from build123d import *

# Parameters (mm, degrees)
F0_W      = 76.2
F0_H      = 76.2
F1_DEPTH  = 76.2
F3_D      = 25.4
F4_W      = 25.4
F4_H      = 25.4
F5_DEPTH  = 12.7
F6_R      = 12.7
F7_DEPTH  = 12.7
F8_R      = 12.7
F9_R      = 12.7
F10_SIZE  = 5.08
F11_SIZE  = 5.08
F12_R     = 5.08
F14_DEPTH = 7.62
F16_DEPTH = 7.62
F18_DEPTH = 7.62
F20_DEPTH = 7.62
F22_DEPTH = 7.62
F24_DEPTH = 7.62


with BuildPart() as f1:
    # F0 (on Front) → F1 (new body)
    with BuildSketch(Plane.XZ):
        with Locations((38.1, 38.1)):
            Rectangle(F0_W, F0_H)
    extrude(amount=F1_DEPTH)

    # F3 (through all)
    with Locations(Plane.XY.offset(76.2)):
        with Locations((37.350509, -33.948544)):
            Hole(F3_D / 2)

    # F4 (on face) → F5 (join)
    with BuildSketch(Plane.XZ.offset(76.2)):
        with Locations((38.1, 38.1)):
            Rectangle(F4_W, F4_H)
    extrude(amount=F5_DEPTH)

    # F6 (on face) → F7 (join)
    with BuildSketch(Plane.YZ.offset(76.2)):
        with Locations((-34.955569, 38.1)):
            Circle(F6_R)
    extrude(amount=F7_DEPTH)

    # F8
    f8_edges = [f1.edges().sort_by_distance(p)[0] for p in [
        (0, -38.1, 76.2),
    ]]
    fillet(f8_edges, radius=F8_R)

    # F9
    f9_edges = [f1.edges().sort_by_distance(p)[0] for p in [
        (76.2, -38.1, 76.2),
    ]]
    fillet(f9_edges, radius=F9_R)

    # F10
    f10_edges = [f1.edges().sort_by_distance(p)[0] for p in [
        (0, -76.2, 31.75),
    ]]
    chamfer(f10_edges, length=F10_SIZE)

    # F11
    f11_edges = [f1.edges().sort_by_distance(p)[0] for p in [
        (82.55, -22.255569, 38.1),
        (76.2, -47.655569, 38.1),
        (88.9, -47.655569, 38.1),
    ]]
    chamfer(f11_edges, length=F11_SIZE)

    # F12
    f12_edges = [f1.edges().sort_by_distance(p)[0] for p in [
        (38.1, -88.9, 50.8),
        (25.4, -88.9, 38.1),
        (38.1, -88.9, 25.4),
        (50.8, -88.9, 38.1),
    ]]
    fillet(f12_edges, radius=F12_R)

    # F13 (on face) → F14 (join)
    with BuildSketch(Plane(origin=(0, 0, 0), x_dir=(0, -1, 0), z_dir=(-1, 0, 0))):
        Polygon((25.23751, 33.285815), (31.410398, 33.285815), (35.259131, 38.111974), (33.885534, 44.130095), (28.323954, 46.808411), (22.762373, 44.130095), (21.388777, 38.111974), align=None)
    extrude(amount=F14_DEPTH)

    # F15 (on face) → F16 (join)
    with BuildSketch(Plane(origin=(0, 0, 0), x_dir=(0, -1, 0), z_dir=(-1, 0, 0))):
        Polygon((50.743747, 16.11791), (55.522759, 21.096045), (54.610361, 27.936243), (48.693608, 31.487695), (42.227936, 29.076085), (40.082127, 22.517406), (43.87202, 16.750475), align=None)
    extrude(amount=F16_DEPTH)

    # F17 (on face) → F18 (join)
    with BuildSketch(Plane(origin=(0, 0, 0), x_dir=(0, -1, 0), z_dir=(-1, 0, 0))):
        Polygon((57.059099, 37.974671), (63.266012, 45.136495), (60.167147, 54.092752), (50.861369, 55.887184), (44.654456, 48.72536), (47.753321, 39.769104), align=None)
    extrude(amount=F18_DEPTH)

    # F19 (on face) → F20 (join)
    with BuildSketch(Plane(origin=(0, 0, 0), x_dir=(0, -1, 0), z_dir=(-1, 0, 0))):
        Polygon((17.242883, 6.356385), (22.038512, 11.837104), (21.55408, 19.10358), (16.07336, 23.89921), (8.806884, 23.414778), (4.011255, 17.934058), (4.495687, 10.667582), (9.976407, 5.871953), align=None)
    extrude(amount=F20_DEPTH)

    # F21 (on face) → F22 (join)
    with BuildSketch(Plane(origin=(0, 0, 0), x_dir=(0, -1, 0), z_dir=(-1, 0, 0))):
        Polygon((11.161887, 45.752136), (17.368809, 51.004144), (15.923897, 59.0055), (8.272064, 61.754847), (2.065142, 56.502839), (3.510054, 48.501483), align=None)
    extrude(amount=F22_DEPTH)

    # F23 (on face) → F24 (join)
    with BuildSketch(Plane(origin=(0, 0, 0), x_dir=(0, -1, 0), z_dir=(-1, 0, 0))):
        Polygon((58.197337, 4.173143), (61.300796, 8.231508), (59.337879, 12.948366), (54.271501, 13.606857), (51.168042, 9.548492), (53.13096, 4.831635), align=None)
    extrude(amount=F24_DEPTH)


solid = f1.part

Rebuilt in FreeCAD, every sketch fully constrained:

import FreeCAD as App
import Part
import Sketcher
from FreeCAD import Vector
Q = App.Units.Quantity


def edges_at(feature, points):
    """Names of the edges that pass closest to the given points."""
    edges = feature.Shape.Edges
    near = lambda p: min(range(len(edges)), key=lambda i: edges[i].distToShape(Part.Vertex(*p))[0])
    return sorted({f"Edge{near(p) + 1}" for p in points})

doc = App.newDocument("Part")
params = doc.addObject("Spreadsheet::Sheet", "Params")
for row, (alias, value) in enumerate([
    ("sketch1_width", "3 in"),
    ("pad1_length", "3 in"),
    ("sketch2_diameter", "1 in"),
    ("hole_diameter", "1 in"),
    ("sketch3_width", "1 in"),
    ("pad2_length", "0.5 in"),
    ("sketch4_diameter", "1 in"),
    ("pad3_length", "0.5 in"),
    ("fillet_radius", "0.5 in"),
    ("fillet2_radius", "0.5 in"),
    ("chamfer_size", "0.2 in"),
    ("chamfer2_size", "0.2 in"),
    ("fillet3_radius", "0.2 in"),
    ("pad4_length", "0.3 in"),
    ("pad5_length", "0.3 in"),
    ("pad6_length", "0.3 in"),
    ("pad7_length", "0.3 in"),
    ("pad8_length", "0.3 in"),
    ("pad9_length", "0.3 in"),
], start=1):
    params.set(f"A{row}", alias)
    params.set(f"B{row}", "=" + value)
    params.setAlias(f"B{row}", alias)

body = doc.addObject("PartDesign::Body", "Body")

# Sketch on XZ plane
sketch1 = doc.addObject("Sketcher::SketchObject", "Sketch")
body.addObject(sketch1)
sketch1.AttachmentSupport = (doc.XZ_Plane, [""])
sketch1.MapMode = "FlatFace"
sketch1.addGeometry([
    Part.LineSegment(Vector(0, 76, 0), Vector(0, 0, 0)),
    Part.LineSegment(Vector(0, 0, 0), Vector(76, 0, 0)),
    Part.LineSegment(Vector(76, 0, 0), Vector(76, 76, 0)),
    Part.LineSegment(Vector(76, 76, 0), Vector(0, 76, 0)),
], False)
sketch1.addConstraint([
    Sketcher.Constraint("Coincident", 0, 2, 1, 1),
    Sketcher.Constraint("Coincident", 1, 2, 2, 1),
    Sketcher.Constraint("Coincident", 2, 2, 3, 1),
    Sketcher.Constraint("Coincident", 3, 2, 0, 1),
    Sketcher.Constraint("Vertical", 0),
    Sketcher.Constraint("Horizontal", 1),
    Sketcher.Constraint("Vertical", 2),
    Sketcher.Constraint("Horizontal", 3),
    Sketcher.Constraint("Coincident", 0, 2, -1, 1),
    Sketcher.Constraint("Equal", 3, 0),
    Sketcher.Constraint("DistanceX", 1, 1, 1, 2, Q("3 in")),
])
sketch1.setExpression("Constraints[10]", "Params.sketch1_width")
pad1 = doc.addObject("PartDesign::Pad", "Pad")
body.addObject(pad1)
pad1.Profile = sketch1
pad1.setExpression("Length", "Params.pad1_length")

# Sketch on XY plane
sketch2 = doc.addObject("Sketcher::SketchObject", "Sketch001")
body.addObject(sketch2)
sketch2.AttachmentSupport = (doc.XY_Plane, [""])
sketch2.MapMode = "FlatFace"
sketch2.AttachmentOffset = App.Placement(Vector(0, 0, 3 * 25.4), App.Rotation())
sketch2.addGeometry(Part.Circle(Vector(37, -34, 0), Vector(0, 0, 1), 13), False)
sketch2.addConstraint([
    Sketcher.Constraint("Diameter", 0, Q("1 in")),
    Sketcher.Constraint("DistanceX", -1, 1, 0, 3, Q("37.350509 mm")),
    Sketcher.Constraint("DistanceY", 0, 3, -1, 1, Q("33.948544 mm")),
])
sketch2.setExpression("Constraints[0]", "Params.sketch2_diameter")
doc.recompute()
hole = doc.addObject("PartDesign::Hole", "Hole")
body.addObject(hole)
hole.Profile = sketch2
hole.ThreadType = "None"
hole.setExpression("Diameter", "Params.hole_diameter")
hole.DepthType = "ThroughAll"

# Sketch on XZ plane
sketch3 = doc.addObject("Sketcher::SketchObject", "Sketch002")
body.addObject(sketch3)
sketch3.AttachmentSupport = (doc.XZ_Plane, [""])
sketch3.MapMode = "FlatFace"
sketch3.AttachmentOffset = App.Placement(Vector(0, 0, 3 * 25.4), App.Rotation())
sketch3.addGeometry([
    Part.LineSegment(Vector(25, 51, 0), Vector(25, 25, 0)),
    Part.LineSegment(Vector(25, 25, 0), Vector(51, 25, 0)),
    Part.LineSegment(Vector(51, 25, 0), Vector(51, 51, 0)),
    Part.LineSegment(Vector(51, 51, 0), Vector(25, 51, 0)),
], False)
sketch3.addConstraint([
    Sketcher.Constraint("Coincident", 0, 2, 1, 1),
    Sketcher.Constraint("Coincident", 1, 2, 2, 1),
    Sketcher.Constraint("Coincident", 2, 2, 3, 1),
    Sketcher.Constraint("Coincident", 3, 2, 0, 1),
    Sketcher.Constraint("Vertical", 0),
    Sketcher.Constraint("Horizontal", 1),
    Sketcher.Constraint("Vertical", 2),
    Sketcher.Constraint("Horizontal", 3),
    Sketcher.Constraint("Equal", 3, 0),
    Sketcher.Constraint("DistanceX", 1, 1, 1, 2, Q("1 in")),
    Sketcher.Constraint("DistanceX", -1, 1, 0, 2, Q("1 in")),
    Sketcher.Constraint("DistanceY", -1, 1, 0, 2, Q("1 in")),
])
sketch3.setExpression("Constraints[9]", "Params.sketch3_width")
pad2 = doc.addObject("PartDesign::Pad", "Pad001")
body.addObject(pad2)
pad2.Profile = sketch3
pad2.setExpression("Length", "Params.pad2_length")

# Sketch on YZ plane
sketch4 = doc.addObject("Sketcher::SketchObject", "Sketch003")
body.addObject(sketch4)
sketch4.AttachmentSupport = (doc.YZ_Plane, [""])
sketch4.MapMode = "FlatFace"
sketch4.AttachmentOffset = App.Placement(Vector(0, 0, 3 * 25.4), App.Rotation())
sketch4.addGeometry(Part.Circle(Vector(-35, 38, 0), Vector(0, 0, 1), 13), False)
sketch4.addConstraint([
    Sketcher.Constraint("Diameter", 0, Q("1 in")),
    Sketcher.Constraint("DistanceY", -1, 1, 0, 3, Q("1.5 in")),
    Sketcher.Constraint("DistanceX", 0, 3, -1, 1, Q("34.955569 mm")),
])
sketch4.setExpression("Constraints[0]", "Params.sketch4_diameter")
pad3 = doc.addObject("PartDesign::Pad", "Pad002")
body.addObject(pad3)
pad3.Profile = sketch4
pad3.setExpression("Length", "Params.pad3_length")
doc.recompute()

fillet = doc.addObject("PartDesign::Fillet", "Fillet")
body.addObject(fillet)
fillet.Base = (pad3, edges_at(pad3, [(0, -38.1, 76.2)]))
fillet.setExpression("Radius", "Params.fillet_radius")
doc.recompute()

fillet2 = doc.addObject("PartDesign::Fillet", "Fillet001")
body.addObject(fillet2)
fillet2.Base = (fillet, edges_at(fillet, [(76.2, -38.1, 76.2)]))
fillet2.setExpression("Radius", "Params.fillet2_radius")
doc.recompute()

chamfer = doc.addObject("PartDesign::Chamfer", "Chamfer")
body.addObject(chamfer)
chamfer.Base = (fillet2, edges_at(fillet2, [(0, -76.2, 31.75)]))
chamfer.setExpression("Size", "Params.chamfer_size")
doc.recompute()

chamfer2 = doc.addObject("PartDesign::Chamfer", "Chamfer001")
body.addObject(chamfer2)
chamfer2.Base = (chamfer, edges_at(chamfer, [(82.55, -22.256, 38.1), (76.2, -47.656, 38.1), (88.9, -47.656, 38.1)]))
chamfer2.setExpression("Size", "Params.chamfer2_size")
doc.recompute()

fillet3 = doc.addObject("PartDesign::Fillet", "Fillet002")
body.addObject(fillet3)
fillet3.Base = (chamfer2, edges_at(chamfer2, [
    (38.1, -88.9, 50.8),
    (25.4, -88.9, 38.1),
    (38.1, -88.9, 25.4),
    (50.8, -88.9, 38.1),
]))
fillet3.setExpression("Radius", "Params.fillet3_radius")

# Sketch on YZ plane
sketch5 = doc.addObject("Sketcher::SketchObject", "Sketch004")
body.addObject(sketch5)
sketch5.AttachmentSupport = (doc.YZ_Plane, [""])
sketch5.MapMode = "FlatFace"
sketch5.addGeometry([
    Part.LineSegment(Vector(-25, 33, 0), Vector(-31, 33, 0)),  # 0
    Part.LineSegment(Vector(-31, 33, 0), Vector(-35, 38, 0)),  # 1
    Part.LineSegment(Vector(-35, 38, 0), Vector(-34, 44, 0)),  # 2
    Part.LineSegment(Vector(-34, 44, 0), Vector(-28, 47, 0)),  # 3
    Part.LineSegment(Vector(-28, 47, 0), Vector(-23, 44, 0)),  # 4
    Part.LineSegment(Vector(-23, 44, 0), Vector(-21, 38, 0)),  # 5
    Part.LineSegment(Vector(-21, 38, 0), Vector(-25, 33, 0)),  # 6
], False)
sketch5.addConstraint([
    Sketcher.Constraint("Coincident", 0, 2, 1, 1),
    Sketcher.Constraint("Coincident", 1, 2, 2, 1),
    Sketcher.Constraint("Coincident", 2, 2, 3, 1),
    Sketcher.Constraint("Coincident", 3, 2, 4, 1),
    Sketcher.Constraint("Coincident", 4, 2, 5, 1),
    Sketcher.Constraint("Coincident", 5, 2, 6, 1),
    Sketcher.Constraint("Coincident", 6, 2, 0, 1),
    Sketcher.Constraint("Horizontal", 0),
    Sketcher.Constraint("Horizontal", 2, 2, 4, 2),
    Sketcher.Constraint("Horizontal", 1, 2, 5, 2),
    Sketcher.Constraint("Equal", 1, 2),
    Sketcher.Constraint("Equal", 2, 3),
    Sketcher.Constraint("Equal", 3, 4),
    Sketcher.Constraint("Equal", 4, 5),
    Sketcher.Constraint("Equal", 5, 6),
    Sketcher.Constraint("DistanceX", 0, 2, 0, 1, Q("6.172888 mm")),
    Sketcher.Constraint("DistanceX", 0, 2, -1, 1, Q("31.410398 mm")),
    Sketcher.Constraint("Distance", 1, Q("6.172889 mm")),
    Sketcher.Constraint("DistanceX", 1, 2, -1, 1, Q("35.259131 mm")),
    Sketcher.Constraint("DistanceY", -1, 1, 3, 2, Q("46.808411 mm")),
    Sketcher.Constraint("DistanceY", 1, 2, 2, 2, Q("6.018121 mm")),
])
pad4 = doc.addObject("PartDesign::Pad", "Pad003")
body.addObject(pad4)
pad4.Profile = sketch5
pad4.setExpression("Length", "Params.pad4_length")
pad4.Reversed = True

# Sketch on YZ plane
sketch6 = doc.addObject("Sketcher::SketchObject", "Sketch005")
body.addObject(sketch6)
sketch6.AttachmentSupport = (doc.YZ_Plane, [""])
sketch6.MapMode = "FlatFace"
sketch6.addGeometry([
    Part.LineSegment(Vector(-51, 16, 0), Vector(-56, 21, 0)),  # 0
    Part.LineSegment(Vector(-56, 21, 0), Vector(-55, 28, 0)),  # 1
    Part.LineSegment(Vector(-55, 28, 0), Vector(-49, 31, 0)),  # 2
    Part.LineSegment(Vector(-49, 31, 0), Vector(-42, 29, 0)),  # 3
    Part.LineSegment(Vector(-42, 29, 0), Vector(-40, 23, 0)),  # 4
    Part.LineSegment(Vector(-40, 23, 0), Vector(-44, 17, 0)),  # 5
    Part.LineSegment(Vector(-44, 17, 0), Vector(-51, 16, 0)),  # 6
], False)
sketch6.addConstraint([
    Sketcher.Constraint("Coincident", 0, 2, 1, 1),
    Sketcher.Constraint("Coincident", 1, 2, 2, 1),
    Sketcher.Constraint("Coincident", 2, 2, 3, 1),
    Sketcher.Constraint("Coincident", 3, 2, 4, 1),
    Sketcher.Constraint("Coincident", 4, 2, 5, 1),
    Sketcher.Constraint("Coincident", 5, 2, 6, 1),
    Sketcher.Constraint("Coincident", 6, 2, 0, 1),
    Sketcher.Constraint("Equal", 0, 1),
    Sketcher.Constraint("Equal", 1, 2),
    Sketcher.Constraint("Equal", 2, 3),
    Sketcher.Constraint("Equal", 3, 4),
    Sketcher.Constraint("Equal", 4, 5),
    Sketcher.Constraint("Equal", 5, 6),
    Sketcher.Constraint("DistanceX", 0, 2, 1, 2, Q("0.912398 mm")),
    Sketcher.Constraint("DistanceY", 0, 2, 1, 2, Q("6.840198 mm")),
    Sketcher.Constraint("DistanceX", 0, 2, -1, 1, Q("55.522759 mm")),
    Sketcher.Constraint("DistanceX", 5, 2, -1, 1, Q("43.87202 mm")),
    Sketcher.Constraint("DistanceY", -1, 1, 6, 2, Q("16.11791 mm")),
    Sketcher.Constraint("DistanceY", 1, 2, 2, 2, Q("3.551452 mm")),
    Sketcher.Constraint("DistanceX", 2, 2, 3, 2, Q("6.465672 mm")),
    Sketcher.Constraint("DistanceX", 3, 2, 4, 2, Q("2.145809 mm")),
])
pad5 = doc.addObject("PartDesign::Pad", "Pad004")
body.addObject(pad5)
pad5.Profile = sketch6
pad5.setExpression("Length", "Params.pad5_length")
pad5.Reversed = True

# Sketch on YZ plane
sketch7 = doc.addObject("Sketcher::SketchObject", "Sketch006")
body.addObject(sketch7)
sketch7.AttachmentSupport = (doc.YZ_Plane, [""])
sketch7.MapMode = "FlatFace"
sketch7.addGeometry([
    Part.LineSegment(Vector(-57, 38, 0), Vector(-63, 45, 0)),  # 0
    Part.LineSegment(Vector(-63, 45, 0), Vector(-60, 54, 0)),  # 1
    Part.LineSegment(Vector(-60, 54, 0), Vector(-51, 56, 0)),  # 2
    Part.LineSegment(Vector(-51, 56, 0), Vector(-45, 49, 0)),  # 3
    Part.LineSegment(Vector(-45, 49, 0), Vector(-48, 40, 0)),  # 4
    Part.LineSegment(Vector(-48, 40, 0), Vector(-57, 38, 0)),  # 5
], False)
sketch7.addConstraint([
    Sketcher.Constraint("Coincident", 0, 2, 1, 1),
    Sketcher.Constraint("Coincident", 1, 2, 2, 1),
    Sketcher.Constraint("Coincident", 2, 2, 3, 1),
    Sketcher.Constraint("Coincident", 3, 2, 4, 1),
    Sketcher.Constraint("Coincident", 4, 2, 5, 1),
    Sketcher.Constraint("Coincident", 5, 2, 0, 1),
    Sketcher.Constraint("Parallel", 0, 3),
    Sketcher.Constraint("Parallel", 1, 4),
    Sketcher.Constraint("Parallel", 2, 5),
    Sketcher.Constraint("Equal", 0, 1),
    Sketcher.Constraint("Equal", 1, 2),
    Sketcher.Constraint("Equal", 2, 3),
    Sketcher.Constraint("DistanceX", 5, 2, -1, 1, Q("57.059099 mm")),
    Sketcher.Constraint("Distance", 0, Q("9.477209 mm")),
    Sketcher.Constraint("DistanceY", -1, 1, 1, 2, Q("54.092752 mm")),
    Sketcher.Constraint("DistanceX", 2, 2, -1, 1, Q("50.861369 mm")),
    Sketcher.Constraint("DistanceY", -1, 1, 3, 2, Q("48.72536 mm")),
    Sketcher.Constraint("DistanceX", 4, 2, -1, 1, Q("47.753321 mm")),
])
pad6 = doc.addObject("PartDesign::Pad", "Pad005")
body.addObject(pad6)
pad6.Profile = sketch7
pad6.setExpression("Length", "Params.pad6_length")
pad6.Reversed = True

# Sketch on YZ plane
sketch8 = doc.addObject("Sketcher::SketchObject", "Sketch007")
body.addObject(sketch8)
sketch8.AttachmentSupport = (doc.YZ_Plane, [""])
sketch8.MapMode = "FlatFace"
sketch8.addGeometry([
    Part.LineSegment(Vector(-17, 6, 0), Vector(-22, 12, 0)),  # 0
    Part.LineSegment(Vector(-22, 12, 0), Vector(-22, 19, 0)),  # 1
    Part.LineSegment(Vector(-22, 19, 0), Vector(-16, 24, 0)),  # 2
    Part.LineSegment(Vector(-16, 24, 0), Vector(-9, 23, 0)),  # 3
    Part.LineSegment(Vector(-9, 23, 0), Vector(-4, 18, 0)),  # 4
    Part.LineSegment(Vector(-4, 18, 0), Vector(-4, 11, 0)),  # 5
    Part.LineSegment(Vector(-4, 11, 0), Vector(-10, 6, 0)),  # 6
    Part.LineSegment(Vector(-10, 6, 0), Vector(-17, 6, 0)),  # 7
], False)
sketch8.addConstraint([
    Sketcher.Constraint("Coincident", 0, 2, 1, 1),
    Sketcher.Constraint("Coincident", 1, 2, 2, 1),
    Sketcher.Constraint("Coincident", 2, 2, 3, 1),
    Sketcher.Constraint("Coincident", 3, 2, 4, 1),
    Sketcher.Constraint("Coincident", 4, 2, 5, 1),
    Sketcher.Constraint("Coincident", 5, 2, 6, 1),
    Sketcher.Constraint("Coincident", 6, 2, 7, 1),
    Sketcher.Constraint("Coincident", 7, 2, 0, 1),
    Sketcher.Constraint("Perpendicular", 0, 2),
    Sketcher.Constraint("Perpendicular", 1, 3),
    Sketcher.Constraint("Perpendicular", 2, 4),
    Sketcher.Constraint("Perpendicular", 3, 5),
    Sketcher.Constraint("Perpendicular", 4, 6),
    Sketcher.Constraint("Perpendicular", 5, 7),
    Sketcher.Constraint("Equal", 0, 1),
    Sketcher.Constraint("Equal", 1, 2),
    Sketcher.Constraint("Equal", 2, 3),
    Sketcher.Constraint("Equal", 3, 4),
    Sketcher.Constraint("Equal", 4, 5),
    Sketcher.Constraint("DistanceY", 5, 2, 1, 2, Q("8.435998 mm")),
    Sketcher.Constraint("DistanceX", 1, 2, -1, 1, Q("21.55408 mm")),
    Sketcher.Constraint("DistanceY", -1, 1, 1, 2, Q("19.10358 mm")),
    Sketcher.Constraint("DistanceX", 2, 2, -1, 1, Q("16.07336 mm")),
    Sketcher.Constraint("DistanceY", -1, 1, 2, 2, Q("23.89921 mm")),
])
pad7 = doc.addObject("PartDesign::Pad", "Pad006")
body.addObject(pad7)
pad7.Profile = sketch8
pad7.setExpression("Length", "Params.pad7_length")
pad7.Reversed = True

# Sketch on YZ plane
sketch9 = doc.addObject("Sketcher::SketchObject", "Sketch008")
body.addObject(sketch9)
sketch9.AttachmentSupport = (doc.YZ_Plane, [""])
sketch9.MapMode = "FlatFace"
sketch9.addGeometry([
    Part.LineSegment(Vector(-11, 46, 0), Vector(-17, 51, 0)),  # 0
    Part.LineSegment(Vector(-17, 51, 0), Vector(-16, 59, 0)),  # 1
    Part.LineSegment(Vector(-16, 59, 0), Vector(-8, 62, 0)),  # 2
    Part.LineSegment(Vector(-8, 62, 0), Vector(-2, 57, 0)),  # 3
    Part.LineSegment(Vector(-2, 57, 0), Vector(-4, 49, 0)),  # 4
    Part.LineSegment(Vector(-4, 49, 0), Vector(-11, 46, 0)),  # 5
], False)
sketch9.addConstraint([
    Sketcher.Constraint("Coincident", 0, 2, 1, 1),
    Sketcher.Constraint("Coincident", 1, 2, 2, 1),
    Sketcher.Constraint("Coincident", 2, 2, 3, 1),
    Sketcher.Constraint("Coincident", 3, 2, 4, 1),
    Sketcher.Constraint("Coincident", 4, 2, 5, 1),
    Sketcher.Constraint("Coincident", 5, 2, 0, 1),
    Sketcher.Constraint("Parallel", 0, 3),
    Sketcher.Constraint("Parallel", 1, 4),
    Sketcher.Constraint("Parallel", 2, 5),
    Sketcher.Constraint("Equal", 0, 1),
    Sketcher.Constraint("Equal", 1, 2),
    Sketcher.Constraint("Equal", 2, 3),
    Sketcher.Constraint("DistanceY", -1, 1, 1, 2, Q("59.0055 mm")),
    Sketcher.Constraint("DistanceX", 0, 2, -1, 1, Q("17.368809 mm")),
    Sketcher.Constraint("DistanceX", 3, 2, -1, 1, Q("2.065142 mm")),
    Sketcher.Constraint("DistanceY", -1, 1, 3, 2, Q("56.502839 mm")),
    Sketcher.Constraint("DistanceX", 0, 2, 1, 2, Q("1.444912 mm")),
    Sketcher.Constraint("DistanceX", 2, 2, 4, 2, Q("4.76201 mm")),
])
pad8 = doc.addObject("PartDesign::Pad", "Pad007")
body.addObject(pad8)
pad8.Profile = sketch9
pad8.setExpression("Length", "Params.pad8_length")
pad8.Reversed = True

# Sketch on YZ plane
sketch10 = doc.addObject("Sketcher::SketchObject", "Sketch009")
body.addObject(sketch10)
sketch10.AttachmentSupport = (doc.YZ_Plane, [""])
sketch10.MapMode = "FlatFace"
sketch10.addGeometry([
    Part.LineSegment(Vector(-58, 4, 0), Vector(-61, 8, 0)),  # 0
    Part.LineSegment(Vector(-61, 8, 0), Vector(-59, 13, 0)),  # 1
    Part.LineSegment(Vector(-59, 13, 0), Vector(-54, 14, 0)),  # 2
    Part.LineSegment(Vector(-54, 14, 0), Vector(-51, 10, 0)),  # 3
    Part.LineSegment(Vector(-51, 10, 0), Vector(-53, 5, 0)),  # 4
    Part.LineSegment(Vector(-53, 5, 0), Vector(-58, 4, 0)),  # 5
], False)
sketch10.addConstraint([
    Sketcher.Constraint("Coincident", 0, 2, 1, 1),
    Sketcher.Constraint("Coincident", 1, 2, 2, 1),
    Sketcher.Constraint("Coincident", 2, 2, 3, 1),
    Sketcher.Constraint("Coincident", 3, 2, 4, 1),
    Sketcher.Constraint("Coincident", 4, 2, 5, 1),
    Sketcher.Constraint("Coincident", 5, 2, 0, 1),
    Sketcher.Constraint("Parallel", 0, 3),
    Sketcher.Constraint("Parallel", 1, 4),
    Sketcher.Constraint("Parallel", 2, 5),
    Sketcher.Constraint("Equal", 0, 1),
    Sketcher.Constraint("Equal", 1, 2),
    Sketcher.Constraint("Equal", 2, 3),
    Sketcher.Constraint("DistanceX", 2, 2, -1, 1, Q("54.271501 mm")),
    Sketcher.Constraint("Distance", 0, Q("5.108991 mm")),
    Sketcher.Constraint("DistanceX", 1, 2, -1, 1, Q("59.337879 mm")),
    Sketcher.Constraint("DistanceX", 4, 2, -1, 1, Q("53.13096 mm")),
    Sketcher.Constraint("DistanceY", 0, 2, 1, 2, Q("4.716858 mm")),
    Sketcher.Constraint("DistanceY", -1, 1, 0, 2, Q("8.231508 mm")),
])
pad9 = doc.addObject("PartDesign::Pad", "Pad008")
body.addObject(pad9)
pad9.Profile = sketch10
pad9.setExpression("Length", "Params.pad9_length")
pad9.Reversed = True

doc.recompute()
